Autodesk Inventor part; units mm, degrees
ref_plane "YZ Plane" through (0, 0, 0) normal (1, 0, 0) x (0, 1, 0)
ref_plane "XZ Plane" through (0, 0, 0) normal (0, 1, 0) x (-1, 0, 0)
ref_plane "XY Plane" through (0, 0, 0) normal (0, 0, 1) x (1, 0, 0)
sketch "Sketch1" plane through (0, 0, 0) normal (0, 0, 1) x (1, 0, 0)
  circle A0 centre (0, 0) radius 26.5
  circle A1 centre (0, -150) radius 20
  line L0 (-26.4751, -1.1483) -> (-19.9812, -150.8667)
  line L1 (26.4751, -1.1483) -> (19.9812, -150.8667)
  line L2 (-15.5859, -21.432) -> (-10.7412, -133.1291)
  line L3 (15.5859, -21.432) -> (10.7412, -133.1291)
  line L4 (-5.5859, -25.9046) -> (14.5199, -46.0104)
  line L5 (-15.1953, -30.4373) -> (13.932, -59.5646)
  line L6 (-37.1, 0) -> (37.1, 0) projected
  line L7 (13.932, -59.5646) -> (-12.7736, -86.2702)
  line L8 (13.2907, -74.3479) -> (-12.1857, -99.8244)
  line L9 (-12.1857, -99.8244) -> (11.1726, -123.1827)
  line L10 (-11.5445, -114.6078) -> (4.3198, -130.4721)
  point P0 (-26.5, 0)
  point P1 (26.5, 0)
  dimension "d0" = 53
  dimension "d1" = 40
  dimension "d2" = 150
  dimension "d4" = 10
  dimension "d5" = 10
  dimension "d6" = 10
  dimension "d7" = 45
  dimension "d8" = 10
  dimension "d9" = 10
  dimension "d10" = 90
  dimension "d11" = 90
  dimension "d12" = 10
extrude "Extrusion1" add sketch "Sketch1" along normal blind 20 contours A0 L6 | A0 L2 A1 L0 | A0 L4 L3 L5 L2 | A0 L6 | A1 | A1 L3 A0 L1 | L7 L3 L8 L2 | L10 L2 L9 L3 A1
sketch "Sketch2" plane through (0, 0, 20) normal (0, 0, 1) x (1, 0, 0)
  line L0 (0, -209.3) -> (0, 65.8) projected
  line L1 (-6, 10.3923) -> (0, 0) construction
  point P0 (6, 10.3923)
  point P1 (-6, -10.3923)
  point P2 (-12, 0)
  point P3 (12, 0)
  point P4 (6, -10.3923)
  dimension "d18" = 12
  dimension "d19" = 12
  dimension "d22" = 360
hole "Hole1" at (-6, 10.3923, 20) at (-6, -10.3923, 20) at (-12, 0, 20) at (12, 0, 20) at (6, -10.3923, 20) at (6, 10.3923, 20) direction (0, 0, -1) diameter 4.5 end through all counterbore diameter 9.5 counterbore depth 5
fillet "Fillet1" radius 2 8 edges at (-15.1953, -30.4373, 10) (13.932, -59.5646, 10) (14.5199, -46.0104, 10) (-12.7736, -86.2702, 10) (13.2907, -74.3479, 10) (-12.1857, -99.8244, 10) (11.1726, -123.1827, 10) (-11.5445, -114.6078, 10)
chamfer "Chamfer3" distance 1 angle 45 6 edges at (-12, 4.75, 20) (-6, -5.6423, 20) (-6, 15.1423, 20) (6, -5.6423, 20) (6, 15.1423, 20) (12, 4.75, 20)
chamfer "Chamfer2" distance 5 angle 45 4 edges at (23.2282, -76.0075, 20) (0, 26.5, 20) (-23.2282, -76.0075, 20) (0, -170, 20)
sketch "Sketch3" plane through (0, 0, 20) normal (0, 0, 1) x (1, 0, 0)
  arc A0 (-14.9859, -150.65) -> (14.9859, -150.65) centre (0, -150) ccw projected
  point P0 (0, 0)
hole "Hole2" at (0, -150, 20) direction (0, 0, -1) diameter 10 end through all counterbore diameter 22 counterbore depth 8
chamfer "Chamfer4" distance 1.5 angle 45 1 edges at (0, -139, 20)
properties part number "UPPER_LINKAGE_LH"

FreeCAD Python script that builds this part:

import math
import FreeCAD as App
import Part
import Sketcher
from FreeCAD import Vector
Q = App.Units.Quantity


def edges_at(feature, points):
    """Names of the edges that pass closest to the given points."""
    edges = feature.Shape.Edges
    near = lambda p: min(range(len(edges)), key=lambda i: edges[i].distToShape(Part.Vertex(*p))[0])
    return sorted({f"Edge{near(p) + 1}" for p in points})


def add_polygon(sketch, points):
    """Adds a closed chain of lines whose ends are joined by coincident constraints."""
    first, n = sketch.GeometryCount, len(points)
    for a, b in zip(points, points[1:] + points[:1]):
        sketch.addGeometry(Part.LineSegment(App.Vector(*a, 0), App.Vector(*b, 0)), False)
    for i in range(n):
        sketch.addConstraint(Sketcher.Constraint("Coincident", first + i, 2, first + (i + 1) % n, 1))

doc = App.newDocument("Part")
body = doc.addObject("PartDesign::Body", "Body")

# Sketch on XY plane
sketch1 = body.newObject("Sketcher::SketchObject", "Sketch")
sketch1.AttachmentSupport = (doc.getObject("XY_Plane"), [""])
sketch1.MapMode = "FlatFace"
sketch1.addGeometry(Part.LineSegment(Vector(-26, -1, 0), Vector(-20, -151, 0)), False)  # 0
sketch1.addGeometry(Part.ArcOfCircle(Part.Circle(Vector(0, -150, 0), Vector(0, 0, 1), 20), math.radians(-178), math.radians(-2)), False)  # 1
sketch1.addGeometry(Part.LineSegment(Vector(20, -151, 0), Vector(26, -1, 0)), False)  # 2
sketch1.addGeometry(Part.ArcOfCircle(Part.Circle(Vector(0, 0, 0), Vector(0, 0, 1), 26), math.radians(-2), math.radians(182)), False)  # 3
sketch1.addGeometry(Part.ArcOfCircle(Part.Circle(Vector(0, 0, 0), Vector(0, 0, 1), 26), math.radians(-102), math.radians(-54)), False)  # 4
sketch1.addGeometry(Part.LineSegment(Vector(16, -21, 0), Vector(15, -46, 0)), False)  # 5
sketch1.addGeometry(Part.LineSegment(Vector(15, -46, 0), Vector(-6, -26, 0)), False)  # 6
add_polygon(sketch1, [(13, -74), (11, -123), (-12, -100)])  # lines 7-9
add_polygon(sketch1, [(-15, -30), (14, -60), (-13, -86)])  # lines 10-12
sketch1.addGeometry(Part.LineSegment(Vector(-11, -133, 0), Vector(-12, -115, 0)), False)  # 13
sketch1.addGeometry(Part.LineSegment(Vector(-12, -115, 0), Vector(4, -130, 0)), False)  # 14
sketch1.addGeometry(Part.ArcOfCircle(Part.Circle(Vector(0, -150, 0), Vector(0, 0, 1), 20), math.radians(78), math.radians(122)), False)  # 15
sketch1.addConstraint([
    Sketcher.Constraint("Tangent", 0, 2, 1, 1),
    Sketcher.Constraint("Tangent", 1, 2, 2, 1),
    Sketcher.Constraint("Tangent", 2, 2, 3, 1),
    Sketcher.Constraint("Tangent", 3, 2, 0, 1),
    Sketcher.Constraint("Coincident", 4, 2, 5, 1),
    Sketcher.Constraint("Coincident", 5, 2, 6, 1),
    Sketcher.Constraint("Coincident", 6, 2, 4, 1),
    Sketcher.Constraint("Coincident", 13, 2, 14, 1),
    Sketcher.Constraint("Coincident", 14, 2, 15, 1),
    Sketcher.Constraint("Coincident", 15, 2, 13, 1),
    Sketcher.Constraint("Coincident", 3, 3, -1, 1),
    Sketcher.Constraint("Coincident", 4, 3, -1, 1),
    Sketcher.Constraint("Coincident", 15, 3, 1, 3),
    Sketcher.Constraint("Equal", 3, 4),
    Sketcher.Constraint("Equal", 1, 15),
    Sketcher.Constraint("PointOnObject", 1, 3, -2),
    Sketcher.Constraint("Parallel", 2, 5),
    Sketcher.Constraint("Parallel", 5, 7),
    Sketcher.Constraint("Parallel", 6, 8),
    Sketcher.Constraint("Perpendicular", 8, 9),
    Sketcher.Constraint("Perpendicular", 9, 10),
    Sketcher.Constraint("Perpendicular", 10, 11),
    Sketcher.Constraint("Parallel", 0, 12),
    Sketcher.Constraint("Parallel", 12, 13),
    Sketcher.Constraint("Perpendicular", 11, 14),
    Sketcher.Constraint("Radius", 1, 20.0),
    Sketcher.Constraint("Radius", 3, 26.5),
    Sketcher.Constraint("Angle", 9, Q("45 deg")),
    Sketcher.Constraint("DistanceY", 1, 3, -1, 1, 150.0),
    Sketcher.Constraint("DistanceY", 10, 2, 6, 2, 33.66),
    Sketcher.Constraint("DistanceX", 0, 2, 15, 2, 9.24),
    Sketcher.Constraint("Distance", 6, 28.434),
    Sketcher.Constraint("DistanceX", -1, 1, 4, 2, 15.586),
    Sketcher.Constraint("DistanceY", 9, 2, -1, 1, 74.348),
    Sketcher.Constraint("DistanceX", -1, 1, 10, 2, 13.932),
    Sketcher.Constraint("DistanceY", 14, 2, -1, 1, 130.472),
    Sketcher.Constraint("DistanceY", 1, 2, 7, 2, 27.684),
    Sketcher.Constraint("DistanceX", 11, 2, 8, 2, 0.588),
    Sketcher.Constraint("DistanceY", 12, 2, 3, 2, 29.289),
])
pad1 = body.newObject("PartDesign::Pad", "Pad")
pad1.Profile = sketch1
pad1.Length = 20

# Sketch on XY plane
sketch2 = body.newObject("Sketcher::SketchObject", "Sketch001")
sketch2.AttachmentSupport = (doc.getObject("XY_Plane"), [""])
sketch2.MapMode = "FlatFace"
sketch2.AttachmentOffset = App.Placement(Vector(0, 0, 20), App.Rotation())
sketch2.addGeometry([
    Part.Circle(Vector(-6, 10.4, 0), Vector(0, 0, 1), 2.2),  # 0
    Part.Circle(Vector(-6, -10.4, 0), Vector(0, 0, 1), 2.2),  # 1
    Part.Circle(Vector(-12, 0, 0), Vector(0, 0, 1), 2.2),  # 2
    Part.Circle(Vector(12, 0, 0), Vector(0, 0, 1), 2.2),  # 3
    Part.Circle(Vector(6, -10.4, 0), Vector(0, 0, 1), 2.2),  # 4
    Part.Circle(Vector(6, 10.4, 0), Vector(0, 0, 1), 2.2),  # 5
], False)
sketch2.addConstraint([
    Sketcher.Constraint("Equal", 0, 1),
    Sketcher.Constraint("Equal", 1, 2),
    Sketcher.Constraint("Equal", 2, 3),
    Sketcher.Constraint("Equal", 3, 4),
    Sketcher.Constraint("Equal", 4, 5),
    Sketcher.Constraint("Symmetric", 2, 3, 3, 3, -1, 1),
    Sketcher.Constraint("Symmetric", 0, 3, 4, 3, -1, 1),
    Sketcher.Constraint("Symmetric", 1, 3, 5, 3, -1, 1),
    Sketcher.Constraint("Symmetric", 1, 3, 4, 3, -2),
    Sketcher.Constraint("PointOnObject", 2, 3, -1),
    Sketcher.Constraint("Diameter", 0, 4.5),
    Sketcher.Constraint("DistanceX", 0, 3, -1, 1, 6.0),
    Sketcher.Constraint("DistanceX", 2, 3, -1, 1, 12.0),
    Sketcher.Constraint("DistanceY", -1, 1, 0, 3, 10.3923),
])
doc.recompute()
hole = body.newObject("PartDesign::Hole", "Hole")
hole.Profile = sketch2
hole.ThreadType = "None"
hole.Diameter = 4.5
hole.DepthType = "ThroughAll"
hole.HoleCutType = "Counterbore"
hole.HoleCutDiameter = 9.5
hole.HoleCutDepth = 5
doc.recompute()

fillet = body.newObject("PartDesign::Fillet", "Fillet")
fillet.Base = (hole, edges_at(hole, [
    (-15.195, -30.437, 10),
    (13.932, -59.565, 10),
    (14.52, -46.01, 10),
    (-12.774, -86.27, 10),
    (13.291, -74.348, 10),
    (-12.186, -99.824, 10),
    (11.173, -123.183, 10),
    (-11.544, -114.608, 10),
]))
fillet.Radius = 2
doc.recompute()

chamfer = body.newObject("PartDesign::Chamfer", "Chamfer")
chamfer.Base = (fillet, edges_at(fillet, [
    (-12, 4.75, 20),
    (-6, -5.642, 20),
    (-6, 15.142, 20),
    (6, -5.642, 20),
    (6, 15.142, 20),
    (12, 4.75, 20),
]))
chamfer.Size = 1
doc.recompute()

chamfer2 = body.newObject("PartDesign::Chamfer", "Chamfer001")
chamfer2.Base = (chamfer, edges_at(chamfer, [
    (23.228, -76.007, 20),
    (0, 26.5, 20),
    (-23.228, -76.007, 20),
    (0, -170, 20),
]))
chamfer2.Size = 5

# Sketch on XY plane
sketch3 = body.newObject("Sketcher::SketchObject", "Sketch002")
sketch3.AttachmentSupport = (doc.getObject("XY_Plane"), [""])
sketch3.MapMode = "FlatFace"
sketch3.AttachmentOffset = App.Placement(Vector(0, 0, 20), App.Rotation())
sketch3.addGeometry(Part.Circle(Vector(0, -150, 0), Vector(0, 0, 1), 5), False)
sketch3.addConstraint([
    Sketcher.Constraint("PointOnObject", 0, 3, -2),
    Sketcher.Constraint("Diameter", 0, 10.0),
    Sketcher.Constraint("DistanceY", 0, 3, -1, 1, 150.0),
])
doc.recompute()
hole2 = body.newObject("PartDesign::Hole", "Hole001")
hole2.Profile = sketch3
hole2.ThreadType = "None"
hole2.Diameter = 10
hole2.DepthType = "ThroughAll"
hole2.HoleCutType = "Counterbore"
hole2.HoleCutDiameter = 22
hole2.HoleCutDepth = 8
doc.recompute()

chamfer3 = body.newObject("PartDesign::Chamfer", "Chamfer002")
chamfer3.Base = (hole2, edges_at(hole2, [(0, -139, 20)]))
chamfer3.Size = 1.5

doc.recompute()
